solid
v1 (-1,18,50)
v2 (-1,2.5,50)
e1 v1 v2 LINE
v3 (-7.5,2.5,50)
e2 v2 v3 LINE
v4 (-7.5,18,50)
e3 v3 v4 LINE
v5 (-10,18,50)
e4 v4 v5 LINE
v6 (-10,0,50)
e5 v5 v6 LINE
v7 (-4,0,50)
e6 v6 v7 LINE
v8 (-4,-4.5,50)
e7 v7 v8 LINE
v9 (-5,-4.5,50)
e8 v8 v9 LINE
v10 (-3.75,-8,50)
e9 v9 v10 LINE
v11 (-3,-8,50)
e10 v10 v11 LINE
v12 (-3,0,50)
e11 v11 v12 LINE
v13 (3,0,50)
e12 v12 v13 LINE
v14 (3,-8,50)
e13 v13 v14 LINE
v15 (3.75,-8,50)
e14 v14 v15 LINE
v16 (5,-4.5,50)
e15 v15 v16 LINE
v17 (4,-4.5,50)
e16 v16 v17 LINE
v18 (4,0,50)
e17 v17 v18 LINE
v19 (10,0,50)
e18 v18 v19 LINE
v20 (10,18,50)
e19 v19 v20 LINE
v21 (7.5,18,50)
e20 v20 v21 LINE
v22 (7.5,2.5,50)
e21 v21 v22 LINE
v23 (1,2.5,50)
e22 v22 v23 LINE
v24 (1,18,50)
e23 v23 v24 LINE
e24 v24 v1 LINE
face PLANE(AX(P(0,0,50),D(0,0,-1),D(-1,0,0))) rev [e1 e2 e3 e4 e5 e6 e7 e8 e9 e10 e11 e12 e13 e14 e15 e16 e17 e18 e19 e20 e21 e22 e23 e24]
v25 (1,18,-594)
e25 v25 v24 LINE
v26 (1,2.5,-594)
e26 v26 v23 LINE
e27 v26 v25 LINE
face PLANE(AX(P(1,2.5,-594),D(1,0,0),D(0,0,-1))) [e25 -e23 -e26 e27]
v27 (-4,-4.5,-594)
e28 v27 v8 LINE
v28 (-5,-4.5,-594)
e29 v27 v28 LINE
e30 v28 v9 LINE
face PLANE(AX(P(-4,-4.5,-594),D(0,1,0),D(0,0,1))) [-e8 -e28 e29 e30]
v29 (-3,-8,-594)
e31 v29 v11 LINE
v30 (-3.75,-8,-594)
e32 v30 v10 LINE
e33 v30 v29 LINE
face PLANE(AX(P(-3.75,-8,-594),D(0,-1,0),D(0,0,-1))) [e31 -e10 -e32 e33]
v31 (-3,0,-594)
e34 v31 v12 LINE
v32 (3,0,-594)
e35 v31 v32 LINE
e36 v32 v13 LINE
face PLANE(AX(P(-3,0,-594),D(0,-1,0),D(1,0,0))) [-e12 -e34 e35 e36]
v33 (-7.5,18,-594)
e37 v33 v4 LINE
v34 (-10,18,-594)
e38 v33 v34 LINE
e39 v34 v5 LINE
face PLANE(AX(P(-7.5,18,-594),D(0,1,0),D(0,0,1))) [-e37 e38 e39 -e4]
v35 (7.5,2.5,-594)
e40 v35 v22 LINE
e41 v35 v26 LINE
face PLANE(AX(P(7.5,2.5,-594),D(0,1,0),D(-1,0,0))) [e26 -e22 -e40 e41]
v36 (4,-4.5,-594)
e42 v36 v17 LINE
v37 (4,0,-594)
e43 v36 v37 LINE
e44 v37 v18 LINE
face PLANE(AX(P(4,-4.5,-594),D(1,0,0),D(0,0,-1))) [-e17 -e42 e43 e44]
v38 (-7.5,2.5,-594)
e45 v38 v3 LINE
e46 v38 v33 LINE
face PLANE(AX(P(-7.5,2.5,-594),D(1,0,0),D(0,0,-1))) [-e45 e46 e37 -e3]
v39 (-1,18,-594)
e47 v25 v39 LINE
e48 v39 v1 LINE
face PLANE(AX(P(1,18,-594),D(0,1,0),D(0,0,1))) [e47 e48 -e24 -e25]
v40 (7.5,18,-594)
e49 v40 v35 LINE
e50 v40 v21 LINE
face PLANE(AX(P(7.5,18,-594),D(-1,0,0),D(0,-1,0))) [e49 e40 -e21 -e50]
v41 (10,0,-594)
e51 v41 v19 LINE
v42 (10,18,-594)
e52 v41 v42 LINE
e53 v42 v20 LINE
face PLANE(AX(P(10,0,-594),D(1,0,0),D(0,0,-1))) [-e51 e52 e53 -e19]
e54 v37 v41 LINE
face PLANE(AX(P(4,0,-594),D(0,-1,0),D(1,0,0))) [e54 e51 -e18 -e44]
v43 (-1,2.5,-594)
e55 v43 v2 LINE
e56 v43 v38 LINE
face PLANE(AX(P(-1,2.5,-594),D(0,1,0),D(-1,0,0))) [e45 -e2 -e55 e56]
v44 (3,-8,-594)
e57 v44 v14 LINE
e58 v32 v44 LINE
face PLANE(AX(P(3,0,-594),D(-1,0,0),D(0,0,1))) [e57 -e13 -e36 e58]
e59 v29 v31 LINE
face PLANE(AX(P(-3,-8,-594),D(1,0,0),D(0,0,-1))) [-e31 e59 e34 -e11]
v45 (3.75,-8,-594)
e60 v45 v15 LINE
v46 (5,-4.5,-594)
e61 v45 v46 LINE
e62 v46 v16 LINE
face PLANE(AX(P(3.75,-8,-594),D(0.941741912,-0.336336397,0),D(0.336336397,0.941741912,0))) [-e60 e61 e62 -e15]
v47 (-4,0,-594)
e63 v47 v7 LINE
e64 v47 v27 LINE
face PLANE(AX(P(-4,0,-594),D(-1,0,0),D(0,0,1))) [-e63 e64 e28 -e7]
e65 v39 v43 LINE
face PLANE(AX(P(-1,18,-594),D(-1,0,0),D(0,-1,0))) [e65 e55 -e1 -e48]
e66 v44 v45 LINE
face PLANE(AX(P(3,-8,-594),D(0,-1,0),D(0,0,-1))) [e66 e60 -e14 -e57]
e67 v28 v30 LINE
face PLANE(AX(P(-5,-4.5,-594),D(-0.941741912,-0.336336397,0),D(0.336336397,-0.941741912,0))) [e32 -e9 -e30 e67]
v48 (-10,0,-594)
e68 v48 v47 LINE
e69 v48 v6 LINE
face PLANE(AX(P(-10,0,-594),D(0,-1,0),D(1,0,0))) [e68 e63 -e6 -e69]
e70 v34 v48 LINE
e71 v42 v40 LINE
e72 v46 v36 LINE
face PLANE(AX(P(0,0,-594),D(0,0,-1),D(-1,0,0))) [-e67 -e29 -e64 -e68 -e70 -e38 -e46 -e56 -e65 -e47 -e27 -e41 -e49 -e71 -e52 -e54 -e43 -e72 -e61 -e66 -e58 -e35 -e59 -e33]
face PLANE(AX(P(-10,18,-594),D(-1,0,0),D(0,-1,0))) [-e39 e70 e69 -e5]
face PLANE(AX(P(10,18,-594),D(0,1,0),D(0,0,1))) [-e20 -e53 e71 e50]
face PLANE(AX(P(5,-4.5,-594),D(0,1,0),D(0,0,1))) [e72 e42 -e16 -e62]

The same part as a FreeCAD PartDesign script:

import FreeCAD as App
import Part
import Sketcher

doc = App.newDocument("Part")
body = doc.addObject("PartDesign::Body", "Body")

# Sketch on XY plane
sketch1 = doc.addObject("Sketcher::SketchObject", "Sketch")
body.addObject(sketch1)
sketch1.AttachmentSupport = (doc.XY_Plane, [""])
sketch1.MapMode = "FlatFace"
sketch1.AttachmentOffset = App.Placement(App.Vector(0, 0, 50), App.Rotation())
sketch1.addGeometry([
    Part.LineSegment(App.Vector(-1, 2.5, 0), App.Vector(-7.5, 2.5, 0)),  # 0
    Part.LineSegment(App.Vector(-7.5, 2.5, 0), App.Vector(-7.5, 18, 0)),  # 1
    Part.LineSegment(App.Vector(-7.5, 18, 0), App.Vector(-10, 18, 0)),  # 2
    Part.LineSegment(App.Vector(-10, 18, 0), App.Vector(-10, 0, 0)),  # 3
    Part.LineSegment(App.Vector(-10, 0, 0), App.Vector(-4, 0, 0)),  # 4
    Part.LineSegment(App.Vector(-4, 0, 0), App.Vector(-4, -4.5, 0)),  # 5
    Part.LineSegment(App.Vector(-4, -4.5, 0), App.Vector(-5, -4.5, 0)),  # 6
    Part.LineSegment(App.Vector(-5, -4.5, 0), App.Vector(-3.8, -8, 0)),  # 7
    Part.LineSegment(App.Vector(-3.8, -8, 0), App.Vector(-3, -8, 0)),  # 8
    Part.LineSegment(App.Vector(-3, -8, 0), App.Vector(-3, 0, 0)),  # 9
    Part.LineSegment(App.Vector(-3, 0, 0), App.Vector(3, 0, 0)),  # 10
    Part.LineSegment(App.Vector(3, 0, 0), App.Vector(3, -8, 0)),  # 11
    Part.LineSegment(App.Vector(3, -8, 0), App.Vector(3.8, -8, 0)),  # 12
    Part.LineSegment(App.Vector(3.8, -8, 0), App.Vector(5, -4.5, 0)),  # 13
    Part.LineSegment(App.Vector(5, -4.5, 0), App.Vector(4, -4.5, 0)),  # 14
    Part.LineSegment(App.Vector(4, -4.5, 0), App.Vector(4, 0, 0)),  # 15
    Part.LineSegment(App.Vector(4, 0, 0), App.Vector(10, 0, 0)),  # 16
    Part.LineSegment(App.Vector(10, 0, 0), App.Vector(10, 18, 0)),  # 17
    Part.LineSegment(App.Vector(10, 18, 0), App.Vector(7.5, 18, 0)),  # 18
    Part.LineSegment(App.Vector(7.5, 18, 0), App.Vector(7.5, 2.5, 0)),  # 19
    Part.LineSegment(App.Vector(7.5, 2.5, 0), App.Vector(1, 2.5, 0)),  # 20
    Part.LineSegment(App.Vector(1, 2.5, 0), App.Vector(1, 18, 0)),  # 21
    Part.LineSegment(App.Vector(1, 18, 0), App.Vector(-1, 18, 0)),  # 22
    Part.LineSegment(App.Vector(-1, 18, 0), App.Vector(-1, 2.5, 0)),  # 23
], False)
sketch1.addConstraint([
    Sketcher.Constraint("Coincident", 0, 2, 1, 1),
    Sketcher.Constraint("Coincident", 1, 2, 2, 1),
    Sketcher.Constraint("Coincident", 2, 2, 3, 1),
    Sketcher.Constraint("Coincident", 3, 2, 4, 1),
    Sketcher.Constraint("Coincident", 4, 2, 5, 1),
    Sketcher.Constraint("Coincident", 5, 2, 6, 1),
    Sketcher.Constraint("Coincident", 6, 2, 7, 1),
    Sketcher.Constraint("Coincident", 7, 2, 8, 1),
    Sketcher.Constraint("Coincident", 8, 2, 9, 1),
    Sketcher.Constraint("Coincident", 9, 2, 10, 1),
    Sketcher.Constraint("Coincident", 10, 2, 11, 1),
    Sketcher.Constraint("Coincident", 11, 2, 12, 1),
    Sketcher.Constraint("Coincident", 12, 2, 13, 1),
    Sketcher.Constraint("Coincident", 13, 2, 14, 1),
    Sketcher.Constraint("Coincident", 14, 2, 15, 1),
    Sketcher.Constraint("Coincident", 15, 2, 16, 1),
    Sketcher.Constraint("Coincident", 16, 2, 17, 1),
    Sketcher.Constraint("Coincident", 17, 2, 18, 1),
    Sketcher.Constraint("Coincident", 18, 2, 19, 1),
    Sketcher.Constraint("Coincident", 19, 2, 20, 1),
    Sketcher.Constraint("Coincident", 20, 2, 21, 1),
    Sketcher.Constraint("Coincident", 21, 2, 22, 1),
    Sketcher.Constraint("Coincident", 22, 2, 23, 1),
    Sketcher.Constraint("Coincident", 23, 2, 0, 1),
    Sketcher.Constraint("Horizontal", 0),
    Sketcher.Constraint("Vertical", 1),
    Sketcher.Constraint("Horizontal", 2),
    Sketcher.Constraint("Vertical", 3),
    Sketcher.Constraint("Horizontal", 4),
    Sketcher.Constraint("Vertical", 5),
    Sketcher.Constraint("Horizontal", 6),
    Sketcher.Constraint("Horizontal", 8),
    Sketcher.Constraint("Vertical", 9),
    Sketcher.Constraint("Horizontal", 10),
    Sketcher.Constraint("Vertical", 11),
    Sketcher.Constraint("Horizontal", 12),
    Sketcher.Constraint("Horizontal", 14),
    Sketcher.Constraint("Vertical", 15),
    Sketcher.Constraint("Horizontal", 16),
    Sketcher.Constraint("Vertical", 17),
    Sketcher.Constraint("Horizontal", 18),
    Sketcher.Constraint("Vertical", 19),
    Sketcher.Constraint("Horizontal", 20),
    Sketcher.Constraint("Vertical", 21),
    Sketcher.Constraint("Horizontal", 22),
    Sketcher.Constraint("Vertical", 23),
    Sketcher.Constraint("Symmetric", 9, 2, 10, 2, -1, 1),
    Sketcher.Constraint("Symmetric", 4, 2, 15, 2, -1, 1),
    Sketcher.Constraint("Symmetric", 7, 2, 12, 2, -2),
    Sketcher.Constraint("Symmetric", 6, 2, 13, 2, -2),
    Sketcher.Constraint("Symmetric", 3, 2, 16, 2, -2),
    Sketcher.Constraint("Symmetric", 1, 2, 18, 2, -2),
    Sketcher.Constraint("Symmetric", 20, 2, 23, 2, -2),
    Sketcher.Constraint("Horizontal", 18, 2, 21, 2),
    Sketcher.Constraint("Equal", 4, 10),
    Sketcher.Constraint("DistanceX", 4, 1, 4, 2, 6.0),
    Sketcher.Constraint("DistanceX", 6, 2, 6, 1, 1.0),
    Sketcher.Constraint("DistanceX", 22, 2, 22, 1, 2.0),
    Sketcher.Constraint("DistanceY", 3, 2, 3, 1, 18.0),
    Sketcher.Constraint("DistanceY", 9, 1, 9, 2, 8.0),
    Sketcher.Constraint("DistanceX", 0, 2, 0, 1, 6.5),
    Sketcher.Constraint("DistanceX", 2, 2, 2, 1, 2.5),
    Sketcher.Constraint("DistanceY", 1, 1, 1, 2, 15.5),
    Sketcher.Constraint("DistanceY", 5, 2, 5, 1, 4.5),
    Sketcher.Constraint("DistanceX", 8, 1, 8, 2, 0.75),
])
pad1 = doc.addObject("PartDesign::Pad", "Pad")
body.addObject(pad1)
pad1.Profile = sketch1
pad1.Length = 644
pad1.Reversed = True

doc.recompute()
